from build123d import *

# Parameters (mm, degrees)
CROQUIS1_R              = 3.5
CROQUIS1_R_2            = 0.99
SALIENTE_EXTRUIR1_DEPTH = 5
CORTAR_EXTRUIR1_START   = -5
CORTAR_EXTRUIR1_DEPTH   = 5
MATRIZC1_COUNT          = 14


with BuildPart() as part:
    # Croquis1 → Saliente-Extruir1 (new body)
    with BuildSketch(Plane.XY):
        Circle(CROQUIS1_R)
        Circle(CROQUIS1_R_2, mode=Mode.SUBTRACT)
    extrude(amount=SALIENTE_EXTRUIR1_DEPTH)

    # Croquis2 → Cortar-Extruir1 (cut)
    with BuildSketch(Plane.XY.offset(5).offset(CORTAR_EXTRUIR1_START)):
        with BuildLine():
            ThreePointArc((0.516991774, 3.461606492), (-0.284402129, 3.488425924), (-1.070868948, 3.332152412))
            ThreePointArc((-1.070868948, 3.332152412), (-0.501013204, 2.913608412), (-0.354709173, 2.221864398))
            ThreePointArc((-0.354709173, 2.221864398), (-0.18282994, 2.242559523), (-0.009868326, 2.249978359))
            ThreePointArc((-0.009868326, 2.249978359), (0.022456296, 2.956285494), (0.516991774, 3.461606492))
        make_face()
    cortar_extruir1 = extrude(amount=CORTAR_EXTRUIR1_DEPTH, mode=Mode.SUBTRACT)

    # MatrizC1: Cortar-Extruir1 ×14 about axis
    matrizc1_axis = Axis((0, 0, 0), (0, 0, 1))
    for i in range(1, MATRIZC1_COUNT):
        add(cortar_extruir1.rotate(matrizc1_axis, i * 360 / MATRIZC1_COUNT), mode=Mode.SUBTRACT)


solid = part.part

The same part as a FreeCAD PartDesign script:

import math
import FreeCAD as App
import Part
import Sketcher
from FreeCAD import Vector

doc = App.newDocument("Part")
body = doc.addObject("PartDesign::Body", "Body")

sketch1 = body.newObject("Sketcher::SketchObject", "Sketch")
sketch1.AttachmentSupport = (doc.getObject("XY_Plane"), [""])
sketch1.MapMode = "FlatFace"
sketch1.addGeometry(Part.Circle(Vector(0, 0, 0), Vector(0, 0, 1), 3.5), False)
sketch1.addGeometry(Part.Circle(Vector(0, 0, 0), Vector(0, 0, 1), 1), False)
sketch1.addConstraint(Sketcher.Constraint("Coincident", 0, 3, -1, 1))
sketch1.addConstraint(Sketcher.Constraint("Coincident", 1, 3, -1, 1))
sketch1.addConstraint(Sketcher.Constraint("Diameter", 0, 7.0))
sketch1.addConstraint(Sketcher.Constraint("Diameter", 1, 1.98))
pad1 = body.newObject("PartDesign::Pad", "Pad")
pad1.Profile = sketch1
pad1.Length = 5

sketch2 = body.newObject("Sketcher::SketchObject", "Sketch001")
sketch2.AttachmentSupport = (doc.getObject("XY_Plane"), [""])
sketch2.MapMode = "FlatFace"
sketch2.addGeometry(Part.ArcOfCircle(Part.Circle(Vector(0, 0, 0), Vector(0, 0, 1), 3.5), math.radians(82), math.radians(108)), False)
sketch2.addGeometry(Part.ArcOfCircle(Part.Circle(Vector(-1.33, 2.38, 0), Vector(0, 0, 1), 0.99), math.radians(-9), math.radians(75)), False)
sketch2.addGeometry(Part.ArcOfCircle(Part.Circle(Vector(0, 0, 0), Vector(0, 0, 1), 2.25), math.radians(90.25), math.radians(99.07)), False)
sketch2.addGeometry(Part.ArcOfCircle(Part.Circle(Vector(0.93, 2.56, 0), Vector(0, 0, 1), 0.99), math.radians(115), math.radians(198)), False)
sketch2.addConstraint(Sketcher.Constraint("Coincident", 0, 2, 1, 2))
sketch2.addConstraint(Sketcher.Constraint("Coincident", 1, 1, 2, 2))
sketch2.addConstraint(Sketcher.Constraint("Coincident", 2, 1, 3, 2))
sketch2.addConstraint(Sketcher.Constraint("Coincident", 3, 1, 0, 1))
sketch2.addConstraint(Sketcher.Constraint("Coincident", 0, 3, -1, 1))
sketch2.addConstraint(Sketcher.Constraint("Coincident", 2, 3, -1, 1))
sketch2.addConstraint(Sketcher.Constraint("Equal", 1, 3))
sketch2.addConstraint(Sketcher.Constraint("Radius", 0, 3.5))
sketch2.addConstraint(Sketcher.Constraint("Radius", 2, 2.25))
sketch2.addConstraint(Sketcher.Constraint("Radius", 1, 0.991858))
sketch2.addConstraint(Sketcher.Constraint("DistanceY", 2, 1, 1, 3, 0.125999))
sketch2.addConstraint(Sketcher.Constraint("DistanceX", 0, 2, 2, 1, 1.061001))
sketch2.addConstraint(Sketcher.Constraint("DistanceY", 1, 1, 3, 3, 0.3389))
sketch2.addConstraint(Sketcher.Constraint("DistanceX", 1, 1, 3, 1, 0.871701))
pocket1 = body.newObject("PartDesign::Pocket", "Pocket")
pocket1.Profile = sketch2
pocket1.Length = 5
pocket1.Reversed = True
doc.recompute()

polarpattern = body.newObject("PartDesign::PolarPattern", "PolarPattern")
polarpattern.Originals = [pocket1]
polarpattern.Axis = (doc.getObject("Z_Axis"), [""])
polarpattern.Angle = 360
polarpattern.Occurrences = 14
body.Tip = polarpattern

doc.recompute()
